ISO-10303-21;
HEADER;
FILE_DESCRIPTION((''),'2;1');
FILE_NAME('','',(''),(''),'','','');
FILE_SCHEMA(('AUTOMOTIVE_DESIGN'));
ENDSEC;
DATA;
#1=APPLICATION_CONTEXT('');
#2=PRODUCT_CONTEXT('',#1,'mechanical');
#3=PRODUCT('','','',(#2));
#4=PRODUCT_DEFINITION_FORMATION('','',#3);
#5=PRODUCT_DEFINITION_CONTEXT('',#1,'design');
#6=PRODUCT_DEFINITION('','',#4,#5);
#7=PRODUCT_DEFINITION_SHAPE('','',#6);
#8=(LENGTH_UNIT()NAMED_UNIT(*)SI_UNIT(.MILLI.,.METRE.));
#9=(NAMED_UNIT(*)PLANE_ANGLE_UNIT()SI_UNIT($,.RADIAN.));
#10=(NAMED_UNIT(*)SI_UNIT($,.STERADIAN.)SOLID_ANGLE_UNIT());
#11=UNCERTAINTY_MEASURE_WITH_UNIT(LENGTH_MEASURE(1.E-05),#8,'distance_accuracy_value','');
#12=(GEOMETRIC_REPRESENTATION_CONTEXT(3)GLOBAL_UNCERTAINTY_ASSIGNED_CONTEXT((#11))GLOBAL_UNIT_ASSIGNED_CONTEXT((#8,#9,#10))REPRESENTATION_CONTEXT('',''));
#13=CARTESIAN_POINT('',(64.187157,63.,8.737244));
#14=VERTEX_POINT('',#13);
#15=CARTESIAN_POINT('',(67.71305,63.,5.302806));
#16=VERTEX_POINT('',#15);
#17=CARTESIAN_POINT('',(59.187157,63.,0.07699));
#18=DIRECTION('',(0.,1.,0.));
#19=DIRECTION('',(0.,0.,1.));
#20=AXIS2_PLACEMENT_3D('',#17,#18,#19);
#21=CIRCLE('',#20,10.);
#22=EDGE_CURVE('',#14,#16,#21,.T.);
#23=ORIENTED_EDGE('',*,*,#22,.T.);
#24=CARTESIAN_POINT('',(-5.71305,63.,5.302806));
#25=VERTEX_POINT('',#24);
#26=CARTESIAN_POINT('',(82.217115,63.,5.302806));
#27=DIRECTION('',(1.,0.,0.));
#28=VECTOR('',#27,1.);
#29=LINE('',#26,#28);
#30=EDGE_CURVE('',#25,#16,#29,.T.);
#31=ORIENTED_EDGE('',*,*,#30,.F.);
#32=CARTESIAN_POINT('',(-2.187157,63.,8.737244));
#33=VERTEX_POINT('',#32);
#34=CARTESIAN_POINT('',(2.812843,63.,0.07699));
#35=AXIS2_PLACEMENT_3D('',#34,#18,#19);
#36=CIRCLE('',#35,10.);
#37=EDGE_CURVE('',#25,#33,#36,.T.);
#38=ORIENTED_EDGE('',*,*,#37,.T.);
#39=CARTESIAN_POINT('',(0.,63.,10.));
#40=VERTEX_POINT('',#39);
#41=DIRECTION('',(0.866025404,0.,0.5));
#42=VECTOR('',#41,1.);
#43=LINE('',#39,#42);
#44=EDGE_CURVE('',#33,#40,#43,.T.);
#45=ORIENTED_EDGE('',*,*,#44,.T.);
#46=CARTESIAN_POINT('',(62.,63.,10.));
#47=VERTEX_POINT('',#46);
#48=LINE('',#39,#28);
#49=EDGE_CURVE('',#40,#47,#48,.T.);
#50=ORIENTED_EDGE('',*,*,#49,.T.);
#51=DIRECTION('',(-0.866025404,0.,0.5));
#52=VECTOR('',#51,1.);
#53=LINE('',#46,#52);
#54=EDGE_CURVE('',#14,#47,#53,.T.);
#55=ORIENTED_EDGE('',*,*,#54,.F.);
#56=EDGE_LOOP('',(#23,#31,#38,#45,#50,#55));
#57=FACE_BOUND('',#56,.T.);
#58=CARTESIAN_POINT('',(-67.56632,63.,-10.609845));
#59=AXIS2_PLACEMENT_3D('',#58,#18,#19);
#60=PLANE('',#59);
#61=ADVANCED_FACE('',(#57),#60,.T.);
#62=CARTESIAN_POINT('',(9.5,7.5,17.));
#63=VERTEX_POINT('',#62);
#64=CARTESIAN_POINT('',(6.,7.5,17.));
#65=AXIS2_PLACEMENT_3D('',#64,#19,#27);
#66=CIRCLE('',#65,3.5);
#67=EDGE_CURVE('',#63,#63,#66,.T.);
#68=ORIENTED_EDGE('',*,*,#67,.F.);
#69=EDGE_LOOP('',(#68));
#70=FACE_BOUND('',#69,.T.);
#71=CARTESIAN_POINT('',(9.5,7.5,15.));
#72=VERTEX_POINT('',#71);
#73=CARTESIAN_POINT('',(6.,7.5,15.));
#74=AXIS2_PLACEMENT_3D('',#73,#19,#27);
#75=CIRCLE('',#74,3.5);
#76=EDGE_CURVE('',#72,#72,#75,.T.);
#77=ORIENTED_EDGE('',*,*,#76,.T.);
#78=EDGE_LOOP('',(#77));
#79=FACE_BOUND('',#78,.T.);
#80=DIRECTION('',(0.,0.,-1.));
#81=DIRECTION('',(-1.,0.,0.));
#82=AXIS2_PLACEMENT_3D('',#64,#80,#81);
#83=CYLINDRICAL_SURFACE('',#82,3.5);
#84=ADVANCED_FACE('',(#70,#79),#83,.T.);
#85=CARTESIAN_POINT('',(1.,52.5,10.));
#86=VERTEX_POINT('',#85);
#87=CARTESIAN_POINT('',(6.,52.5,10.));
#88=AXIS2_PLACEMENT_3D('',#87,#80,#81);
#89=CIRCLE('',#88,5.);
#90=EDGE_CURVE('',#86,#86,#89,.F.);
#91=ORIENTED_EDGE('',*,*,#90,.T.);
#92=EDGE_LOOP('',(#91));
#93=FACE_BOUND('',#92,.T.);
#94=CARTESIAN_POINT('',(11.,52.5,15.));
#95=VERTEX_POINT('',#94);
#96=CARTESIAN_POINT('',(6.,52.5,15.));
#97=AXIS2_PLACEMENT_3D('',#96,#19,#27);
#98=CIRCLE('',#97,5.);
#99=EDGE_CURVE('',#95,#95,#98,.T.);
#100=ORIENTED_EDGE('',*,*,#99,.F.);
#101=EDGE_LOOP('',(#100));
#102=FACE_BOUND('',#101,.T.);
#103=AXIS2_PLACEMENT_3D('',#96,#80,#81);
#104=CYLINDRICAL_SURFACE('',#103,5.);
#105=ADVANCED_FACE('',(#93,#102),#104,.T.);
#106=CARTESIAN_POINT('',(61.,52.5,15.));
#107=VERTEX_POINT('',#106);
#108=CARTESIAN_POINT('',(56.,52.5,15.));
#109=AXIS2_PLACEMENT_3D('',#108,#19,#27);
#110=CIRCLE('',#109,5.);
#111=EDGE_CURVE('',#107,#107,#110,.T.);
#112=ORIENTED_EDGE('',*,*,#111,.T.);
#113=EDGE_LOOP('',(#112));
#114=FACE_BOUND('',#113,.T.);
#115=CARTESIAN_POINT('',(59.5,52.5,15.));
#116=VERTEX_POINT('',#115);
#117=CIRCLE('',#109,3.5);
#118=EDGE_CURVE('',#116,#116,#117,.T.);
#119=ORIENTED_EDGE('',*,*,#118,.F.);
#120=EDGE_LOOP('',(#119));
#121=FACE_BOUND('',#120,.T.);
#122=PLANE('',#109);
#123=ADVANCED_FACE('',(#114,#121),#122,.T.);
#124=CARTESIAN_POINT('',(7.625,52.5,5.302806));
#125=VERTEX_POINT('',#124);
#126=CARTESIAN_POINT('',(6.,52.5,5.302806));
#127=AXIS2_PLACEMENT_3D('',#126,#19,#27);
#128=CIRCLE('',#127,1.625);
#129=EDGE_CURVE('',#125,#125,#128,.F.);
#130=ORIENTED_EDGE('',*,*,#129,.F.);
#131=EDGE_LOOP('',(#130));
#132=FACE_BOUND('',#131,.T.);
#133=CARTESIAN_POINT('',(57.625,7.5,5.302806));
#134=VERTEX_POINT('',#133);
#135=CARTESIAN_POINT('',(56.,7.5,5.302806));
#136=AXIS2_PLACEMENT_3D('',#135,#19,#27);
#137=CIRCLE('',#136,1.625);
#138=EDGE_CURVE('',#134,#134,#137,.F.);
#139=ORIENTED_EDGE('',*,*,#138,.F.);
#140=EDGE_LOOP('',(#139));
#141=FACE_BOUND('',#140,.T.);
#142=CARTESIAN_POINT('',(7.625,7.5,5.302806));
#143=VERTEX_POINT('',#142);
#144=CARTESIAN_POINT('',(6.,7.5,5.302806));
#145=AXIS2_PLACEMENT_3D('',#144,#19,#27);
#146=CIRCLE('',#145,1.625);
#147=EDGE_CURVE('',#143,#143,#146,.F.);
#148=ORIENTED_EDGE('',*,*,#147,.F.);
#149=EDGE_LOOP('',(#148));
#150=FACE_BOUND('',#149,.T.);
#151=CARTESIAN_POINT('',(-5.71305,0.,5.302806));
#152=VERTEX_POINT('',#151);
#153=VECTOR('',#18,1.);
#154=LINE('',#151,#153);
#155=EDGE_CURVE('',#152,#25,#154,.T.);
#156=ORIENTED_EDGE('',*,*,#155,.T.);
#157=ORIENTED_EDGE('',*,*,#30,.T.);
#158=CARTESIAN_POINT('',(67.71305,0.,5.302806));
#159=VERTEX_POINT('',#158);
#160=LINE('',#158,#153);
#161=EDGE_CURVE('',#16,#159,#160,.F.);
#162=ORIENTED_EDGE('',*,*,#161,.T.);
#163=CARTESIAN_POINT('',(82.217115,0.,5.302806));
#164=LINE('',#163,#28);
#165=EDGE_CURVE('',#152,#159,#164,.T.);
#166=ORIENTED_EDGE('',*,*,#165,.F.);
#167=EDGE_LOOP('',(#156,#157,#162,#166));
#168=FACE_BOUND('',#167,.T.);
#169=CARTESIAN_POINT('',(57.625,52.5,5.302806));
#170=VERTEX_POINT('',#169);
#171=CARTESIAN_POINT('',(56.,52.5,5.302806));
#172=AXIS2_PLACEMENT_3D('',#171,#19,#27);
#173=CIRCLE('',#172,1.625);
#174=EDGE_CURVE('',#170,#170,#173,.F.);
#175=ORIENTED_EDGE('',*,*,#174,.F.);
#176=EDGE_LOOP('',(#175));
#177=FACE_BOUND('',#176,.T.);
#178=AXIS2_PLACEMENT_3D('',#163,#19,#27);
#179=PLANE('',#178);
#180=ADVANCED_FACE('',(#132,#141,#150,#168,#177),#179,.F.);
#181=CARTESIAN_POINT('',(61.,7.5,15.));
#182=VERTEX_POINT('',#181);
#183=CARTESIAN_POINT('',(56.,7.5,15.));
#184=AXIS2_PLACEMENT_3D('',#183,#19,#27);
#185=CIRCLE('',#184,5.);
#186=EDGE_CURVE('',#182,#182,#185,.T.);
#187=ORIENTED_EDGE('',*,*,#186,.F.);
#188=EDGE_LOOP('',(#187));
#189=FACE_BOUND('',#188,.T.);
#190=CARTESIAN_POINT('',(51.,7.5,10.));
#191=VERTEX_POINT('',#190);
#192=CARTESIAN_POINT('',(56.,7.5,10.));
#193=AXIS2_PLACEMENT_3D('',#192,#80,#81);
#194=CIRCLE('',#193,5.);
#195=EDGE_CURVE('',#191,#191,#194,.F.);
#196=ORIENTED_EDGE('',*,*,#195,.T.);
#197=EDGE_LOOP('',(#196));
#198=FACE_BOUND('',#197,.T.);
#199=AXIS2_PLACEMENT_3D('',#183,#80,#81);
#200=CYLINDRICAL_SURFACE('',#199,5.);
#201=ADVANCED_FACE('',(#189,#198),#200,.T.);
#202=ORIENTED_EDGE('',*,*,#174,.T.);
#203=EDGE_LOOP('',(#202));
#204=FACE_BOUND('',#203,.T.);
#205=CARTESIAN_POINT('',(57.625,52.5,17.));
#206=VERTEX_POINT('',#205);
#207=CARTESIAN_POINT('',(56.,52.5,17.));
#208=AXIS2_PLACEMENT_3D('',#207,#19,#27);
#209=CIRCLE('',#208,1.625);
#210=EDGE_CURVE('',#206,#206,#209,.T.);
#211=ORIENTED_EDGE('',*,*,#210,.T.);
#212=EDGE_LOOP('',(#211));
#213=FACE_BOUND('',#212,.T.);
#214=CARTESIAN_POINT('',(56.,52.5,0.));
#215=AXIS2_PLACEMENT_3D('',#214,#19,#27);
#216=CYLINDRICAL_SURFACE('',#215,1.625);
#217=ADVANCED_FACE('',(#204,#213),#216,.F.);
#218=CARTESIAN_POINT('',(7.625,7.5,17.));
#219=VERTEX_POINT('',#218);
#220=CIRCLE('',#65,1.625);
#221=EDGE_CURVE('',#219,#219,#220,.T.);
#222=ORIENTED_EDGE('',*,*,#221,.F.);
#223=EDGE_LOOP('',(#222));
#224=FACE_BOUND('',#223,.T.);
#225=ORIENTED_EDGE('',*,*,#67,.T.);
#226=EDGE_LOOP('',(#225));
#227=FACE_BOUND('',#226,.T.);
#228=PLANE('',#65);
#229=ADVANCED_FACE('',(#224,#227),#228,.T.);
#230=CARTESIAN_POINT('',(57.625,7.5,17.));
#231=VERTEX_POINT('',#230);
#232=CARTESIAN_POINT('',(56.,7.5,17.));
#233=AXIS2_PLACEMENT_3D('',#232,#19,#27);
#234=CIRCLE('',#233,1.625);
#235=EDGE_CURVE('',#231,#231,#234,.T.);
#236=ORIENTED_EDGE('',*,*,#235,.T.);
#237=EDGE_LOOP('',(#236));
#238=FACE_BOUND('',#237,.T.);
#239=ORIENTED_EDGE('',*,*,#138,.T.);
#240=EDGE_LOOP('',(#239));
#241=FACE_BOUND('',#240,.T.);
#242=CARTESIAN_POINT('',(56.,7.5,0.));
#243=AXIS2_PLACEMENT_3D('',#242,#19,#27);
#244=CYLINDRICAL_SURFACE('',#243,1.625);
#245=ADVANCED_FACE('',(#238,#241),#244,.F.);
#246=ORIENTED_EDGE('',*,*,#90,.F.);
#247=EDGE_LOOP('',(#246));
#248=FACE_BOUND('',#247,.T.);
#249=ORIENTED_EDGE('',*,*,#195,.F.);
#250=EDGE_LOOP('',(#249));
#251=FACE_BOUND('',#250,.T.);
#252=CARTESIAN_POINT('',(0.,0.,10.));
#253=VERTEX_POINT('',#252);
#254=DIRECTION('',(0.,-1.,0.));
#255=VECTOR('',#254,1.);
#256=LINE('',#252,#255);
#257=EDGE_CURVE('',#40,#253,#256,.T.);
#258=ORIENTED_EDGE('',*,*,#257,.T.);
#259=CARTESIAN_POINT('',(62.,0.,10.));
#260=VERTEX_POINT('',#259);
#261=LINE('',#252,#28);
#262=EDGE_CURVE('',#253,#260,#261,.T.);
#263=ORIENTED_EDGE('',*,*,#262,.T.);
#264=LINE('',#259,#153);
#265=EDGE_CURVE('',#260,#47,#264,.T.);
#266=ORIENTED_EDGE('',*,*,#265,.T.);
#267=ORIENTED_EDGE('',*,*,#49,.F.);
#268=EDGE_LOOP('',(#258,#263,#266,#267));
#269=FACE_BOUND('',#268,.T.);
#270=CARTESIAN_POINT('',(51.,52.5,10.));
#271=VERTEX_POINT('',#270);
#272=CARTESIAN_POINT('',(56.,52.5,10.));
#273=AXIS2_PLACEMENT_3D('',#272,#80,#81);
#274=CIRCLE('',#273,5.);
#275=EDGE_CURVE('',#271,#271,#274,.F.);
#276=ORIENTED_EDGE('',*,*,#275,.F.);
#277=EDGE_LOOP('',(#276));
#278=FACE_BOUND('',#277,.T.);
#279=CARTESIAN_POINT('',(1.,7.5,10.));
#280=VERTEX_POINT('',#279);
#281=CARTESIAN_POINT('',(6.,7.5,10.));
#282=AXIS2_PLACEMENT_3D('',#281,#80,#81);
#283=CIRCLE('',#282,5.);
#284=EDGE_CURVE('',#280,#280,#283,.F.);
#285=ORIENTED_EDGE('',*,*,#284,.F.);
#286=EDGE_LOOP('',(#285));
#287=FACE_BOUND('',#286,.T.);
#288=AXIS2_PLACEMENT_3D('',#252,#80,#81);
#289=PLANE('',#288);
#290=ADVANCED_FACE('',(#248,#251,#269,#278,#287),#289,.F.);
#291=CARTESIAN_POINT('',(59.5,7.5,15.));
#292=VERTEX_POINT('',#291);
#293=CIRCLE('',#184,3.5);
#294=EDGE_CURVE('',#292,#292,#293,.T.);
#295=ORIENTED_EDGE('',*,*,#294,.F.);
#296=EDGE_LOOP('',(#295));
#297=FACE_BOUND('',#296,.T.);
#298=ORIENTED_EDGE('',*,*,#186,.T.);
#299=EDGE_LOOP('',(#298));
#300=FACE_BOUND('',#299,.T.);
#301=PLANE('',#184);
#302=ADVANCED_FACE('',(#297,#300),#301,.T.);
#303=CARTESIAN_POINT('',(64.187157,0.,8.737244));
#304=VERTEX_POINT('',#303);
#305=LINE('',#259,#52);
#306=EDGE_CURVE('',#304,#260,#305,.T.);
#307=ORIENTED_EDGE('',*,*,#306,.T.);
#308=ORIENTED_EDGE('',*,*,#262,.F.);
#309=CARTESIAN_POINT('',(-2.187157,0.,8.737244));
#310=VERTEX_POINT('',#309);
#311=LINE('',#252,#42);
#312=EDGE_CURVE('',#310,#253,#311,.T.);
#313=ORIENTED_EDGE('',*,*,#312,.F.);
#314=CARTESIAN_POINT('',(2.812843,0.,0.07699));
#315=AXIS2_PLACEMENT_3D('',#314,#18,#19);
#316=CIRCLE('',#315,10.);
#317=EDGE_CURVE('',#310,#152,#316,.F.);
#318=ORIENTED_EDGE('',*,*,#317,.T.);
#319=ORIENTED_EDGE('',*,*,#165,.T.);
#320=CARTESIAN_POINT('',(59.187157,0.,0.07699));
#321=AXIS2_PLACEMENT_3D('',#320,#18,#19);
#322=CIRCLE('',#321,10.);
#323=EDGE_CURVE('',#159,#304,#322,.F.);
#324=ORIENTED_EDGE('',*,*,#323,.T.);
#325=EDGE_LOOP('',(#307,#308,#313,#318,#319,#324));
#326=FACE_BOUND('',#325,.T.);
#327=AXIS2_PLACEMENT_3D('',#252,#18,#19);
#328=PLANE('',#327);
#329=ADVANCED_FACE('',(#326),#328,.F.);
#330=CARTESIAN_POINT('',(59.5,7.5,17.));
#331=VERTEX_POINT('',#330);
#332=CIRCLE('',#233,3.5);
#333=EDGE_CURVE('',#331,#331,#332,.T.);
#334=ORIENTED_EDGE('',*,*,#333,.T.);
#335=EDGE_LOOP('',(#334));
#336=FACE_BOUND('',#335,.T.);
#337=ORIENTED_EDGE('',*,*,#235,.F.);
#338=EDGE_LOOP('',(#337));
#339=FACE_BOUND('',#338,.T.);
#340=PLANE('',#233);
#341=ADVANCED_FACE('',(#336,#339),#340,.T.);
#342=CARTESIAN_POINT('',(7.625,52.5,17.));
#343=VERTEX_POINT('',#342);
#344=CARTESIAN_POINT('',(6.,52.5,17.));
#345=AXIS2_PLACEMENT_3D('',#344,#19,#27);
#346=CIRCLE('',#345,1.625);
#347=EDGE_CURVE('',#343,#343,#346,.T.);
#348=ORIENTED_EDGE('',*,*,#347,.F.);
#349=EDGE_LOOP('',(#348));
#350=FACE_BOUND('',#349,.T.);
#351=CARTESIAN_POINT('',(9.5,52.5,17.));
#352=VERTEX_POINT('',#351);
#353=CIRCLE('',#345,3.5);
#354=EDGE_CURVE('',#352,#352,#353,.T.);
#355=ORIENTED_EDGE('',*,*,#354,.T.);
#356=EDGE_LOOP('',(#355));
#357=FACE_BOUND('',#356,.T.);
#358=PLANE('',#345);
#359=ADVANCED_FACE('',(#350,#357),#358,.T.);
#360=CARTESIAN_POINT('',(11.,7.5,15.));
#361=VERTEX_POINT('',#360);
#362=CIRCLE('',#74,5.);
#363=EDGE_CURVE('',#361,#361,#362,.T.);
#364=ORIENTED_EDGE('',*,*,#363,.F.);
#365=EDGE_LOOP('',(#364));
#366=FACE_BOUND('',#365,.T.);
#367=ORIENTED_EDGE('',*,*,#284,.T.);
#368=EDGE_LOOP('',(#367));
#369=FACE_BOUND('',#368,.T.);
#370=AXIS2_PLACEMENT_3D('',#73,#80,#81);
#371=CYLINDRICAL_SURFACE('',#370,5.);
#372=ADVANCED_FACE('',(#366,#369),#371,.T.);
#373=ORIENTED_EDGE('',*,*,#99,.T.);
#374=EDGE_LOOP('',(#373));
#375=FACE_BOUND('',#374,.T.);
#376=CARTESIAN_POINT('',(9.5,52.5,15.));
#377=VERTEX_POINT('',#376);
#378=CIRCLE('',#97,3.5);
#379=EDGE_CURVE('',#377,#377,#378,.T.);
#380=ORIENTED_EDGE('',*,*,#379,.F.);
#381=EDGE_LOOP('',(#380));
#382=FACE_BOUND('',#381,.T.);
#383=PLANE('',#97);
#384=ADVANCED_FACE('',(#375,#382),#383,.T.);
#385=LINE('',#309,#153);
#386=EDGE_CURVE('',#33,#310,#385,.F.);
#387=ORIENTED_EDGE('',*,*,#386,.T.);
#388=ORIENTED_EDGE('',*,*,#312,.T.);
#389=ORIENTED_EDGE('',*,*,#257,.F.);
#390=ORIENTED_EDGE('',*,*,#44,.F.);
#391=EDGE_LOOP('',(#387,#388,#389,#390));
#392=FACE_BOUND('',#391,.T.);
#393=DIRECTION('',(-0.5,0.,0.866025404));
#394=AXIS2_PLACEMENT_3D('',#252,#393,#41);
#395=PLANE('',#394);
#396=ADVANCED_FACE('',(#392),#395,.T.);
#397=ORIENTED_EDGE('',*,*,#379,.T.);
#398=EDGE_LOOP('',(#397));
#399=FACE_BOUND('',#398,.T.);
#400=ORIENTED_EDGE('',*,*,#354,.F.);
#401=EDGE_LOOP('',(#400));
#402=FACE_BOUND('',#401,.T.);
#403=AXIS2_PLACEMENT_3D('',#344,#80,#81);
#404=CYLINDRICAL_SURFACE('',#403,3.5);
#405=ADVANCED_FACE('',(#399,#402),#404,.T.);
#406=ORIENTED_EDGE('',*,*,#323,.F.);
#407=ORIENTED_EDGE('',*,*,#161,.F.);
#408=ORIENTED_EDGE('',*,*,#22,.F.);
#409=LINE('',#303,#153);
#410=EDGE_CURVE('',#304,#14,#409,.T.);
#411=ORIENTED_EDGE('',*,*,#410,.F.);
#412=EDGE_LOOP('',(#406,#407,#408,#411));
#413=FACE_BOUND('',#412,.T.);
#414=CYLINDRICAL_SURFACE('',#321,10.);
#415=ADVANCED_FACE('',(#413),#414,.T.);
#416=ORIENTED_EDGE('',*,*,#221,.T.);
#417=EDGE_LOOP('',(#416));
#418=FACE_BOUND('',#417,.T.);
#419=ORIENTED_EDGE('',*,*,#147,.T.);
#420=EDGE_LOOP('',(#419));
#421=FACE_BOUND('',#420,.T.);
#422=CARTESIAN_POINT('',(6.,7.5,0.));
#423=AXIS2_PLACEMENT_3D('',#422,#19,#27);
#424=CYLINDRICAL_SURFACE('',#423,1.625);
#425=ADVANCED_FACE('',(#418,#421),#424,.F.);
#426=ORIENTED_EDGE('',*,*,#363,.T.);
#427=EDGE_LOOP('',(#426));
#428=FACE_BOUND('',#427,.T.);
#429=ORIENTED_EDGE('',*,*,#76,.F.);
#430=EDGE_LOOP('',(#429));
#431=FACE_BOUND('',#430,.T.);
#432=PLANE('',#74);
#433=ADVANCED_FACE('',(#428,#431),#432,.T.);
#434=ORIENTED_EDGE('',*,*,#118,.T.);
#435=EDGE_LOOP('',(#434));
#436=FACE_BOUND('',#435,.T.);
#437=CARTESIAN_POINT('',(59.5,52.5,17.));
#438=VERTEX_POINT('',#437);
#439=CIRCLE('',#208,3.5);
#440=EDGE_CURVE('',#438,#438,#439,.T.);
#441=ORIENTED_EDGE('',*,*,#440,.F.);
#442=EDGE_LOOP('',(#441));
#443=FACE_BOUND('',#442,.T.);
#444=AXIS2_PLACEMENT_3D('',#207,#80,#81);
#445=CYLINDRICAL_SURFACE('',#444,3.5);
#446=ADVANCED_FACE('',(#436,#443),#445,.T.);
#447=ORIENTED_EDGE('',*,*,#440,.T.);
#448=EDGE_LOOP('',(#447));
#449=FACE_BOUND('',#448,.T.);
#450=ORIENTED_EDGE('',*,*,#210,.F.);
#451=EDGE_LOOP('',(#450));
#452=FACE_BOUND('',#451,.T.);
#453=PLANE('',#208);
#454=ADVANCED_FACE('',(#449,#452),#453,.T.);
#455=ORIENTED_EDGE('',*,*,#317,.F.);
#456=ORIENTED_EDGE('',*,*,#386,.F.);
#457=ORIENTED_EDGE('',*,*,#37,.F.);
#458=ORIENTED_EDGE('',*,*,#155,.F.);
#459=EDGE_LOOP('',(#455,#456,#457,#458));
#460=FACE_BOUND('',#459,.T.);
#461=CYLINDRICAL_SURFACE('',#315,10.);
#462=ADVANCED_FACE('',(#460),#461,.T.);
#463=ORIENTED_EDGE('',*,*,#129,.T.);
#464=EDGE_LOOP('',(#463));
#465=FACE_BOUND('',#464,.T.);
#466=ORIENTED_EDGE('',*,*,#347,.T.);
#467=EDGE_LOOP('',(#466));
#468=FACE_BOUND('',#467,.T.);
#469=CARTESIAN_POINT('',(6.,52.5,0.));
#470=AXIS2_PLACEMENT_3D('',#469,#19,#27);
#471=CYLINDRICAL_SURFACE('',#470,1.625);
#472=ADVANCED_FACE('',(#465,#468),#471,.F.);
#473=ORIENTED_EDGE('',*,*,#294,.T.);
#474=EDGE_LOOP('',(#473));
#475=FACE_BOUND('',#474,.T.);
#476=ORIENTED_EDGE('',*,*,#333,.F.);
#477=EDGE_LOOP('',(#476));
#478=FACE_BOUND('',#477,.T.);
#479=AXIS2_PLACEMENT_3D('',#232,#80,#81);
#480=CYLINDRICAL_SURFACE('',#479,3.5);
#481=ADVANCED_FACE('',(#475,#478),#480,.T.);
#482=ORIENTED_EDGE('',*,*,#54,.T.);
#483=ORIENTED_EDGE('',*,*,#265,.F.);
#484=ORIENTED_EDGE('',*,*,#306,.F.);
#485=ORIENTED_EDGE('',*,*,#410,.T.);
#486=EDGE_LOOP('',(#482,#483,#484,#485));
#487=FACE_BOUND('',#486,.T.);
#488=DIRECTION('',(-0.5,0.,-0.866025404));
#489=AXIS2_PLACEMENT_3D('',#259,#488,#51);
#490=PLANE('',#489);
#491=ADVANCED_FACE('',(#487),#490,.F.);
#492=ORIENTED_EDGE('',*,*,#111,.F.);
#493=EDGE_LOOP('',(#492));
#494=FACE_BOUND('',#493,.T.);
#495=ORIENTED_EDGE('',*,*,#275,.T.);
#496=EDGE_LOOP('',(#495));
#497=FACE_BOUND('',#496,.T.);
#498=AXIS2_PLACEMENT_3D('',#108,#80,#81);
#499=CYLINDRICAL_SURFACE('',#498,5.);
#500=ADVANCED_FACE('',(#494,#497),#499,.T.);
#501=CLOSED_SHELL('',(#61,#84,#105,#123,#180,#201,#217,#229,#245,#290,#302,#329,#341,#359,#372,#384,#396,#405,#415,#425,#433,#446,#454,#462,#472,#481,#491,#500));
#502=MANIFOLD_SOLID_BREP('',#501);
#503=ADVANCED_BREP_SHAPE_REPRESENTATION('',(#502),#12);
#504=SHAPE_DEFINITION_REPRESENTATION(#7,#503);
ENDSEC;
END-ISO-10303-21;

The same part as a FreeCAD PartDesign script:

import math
import FreeCAD as App
import Part
import Sketcher
Q = App.Units.Quantity


def edges_at(feature, points):
    """Names of the edges that pass closest to the given points."""
    edges = feature.Shape.Edges
    near = lambda p: min(range(len(edges)), key=lambda i: edges[i].distToShape(Part.Vertex(*p))[0])
    return sorted({f"Edge{near(p) + 1}" for p in points})

doc = App.newDocument("Part")
params = doc.addObject("Spreadsheet::Sheet", "Params")
for row, (alias, value) in enumerate([
    ("sketch1_width", "62 mm"),
    ("sketch1_height", "60 mm"),
    ("pad1_length", "10 mm"),
    ("sketch2_diameter", "10 mm"),
    ("pad2_length", "5 mm"),
    ("sketch3_diameter", "7 mm"),
    ("pad3_length", "2 mm"),
    ("sketch4_diameter", "3.25 mm"),
    ("sketch5_radius", "130 mm"),
    ("sketch5_width", "62 mm"),
    ("sketch5_width2", "50 mm"),
    ("sketch5_height", "10 mm"),
    ("pad4_length", "6 mm"),
    ("sketch6_diameter", "22 mm"),
    ("sketch6_diameter2", "3 mm"),
    ("sketch6_diameter3", "3.25 mm"),
    ("pocket2_length", "10 mm"),
    ("sketch7_radius", "130 mm"),
    ("sketch7_radius2", "100 mm"),
    ("sketch7_height", "10 mm"),
    ("sketch7_length", "8 mm"),
    ("pad5_length", "63 mm"),
    ("pocket3_length", "4 mm"),
    ("sketch9_radius", "70 mm"),
    ("sketch9_width", "53 mm"),
    ("sketch9_height", "51 mm"),
    ("pocket4_length", "204 mm"),
    ("sketch10_width", "42 mm"),
    ("pocket5_length", "23 mm"),
    ("pocket5_length2", "1 mm"),
    ("chamfer_size", "1 mm"),
    ("fillet_radius", "10 mm"),
], start=1):
    params.set(f"A{row}", alias)
    params.set(f"B{row}", "=" + value)
    params.setAlias(f"B{row}", alias)

body = doc.addObject("PartDesign::Body", "Body")

# Sketch on XY plane
sketch1 = doc.addObject("Sketcher::SketchObject", "Sketch")
body.addObject(sketch1)
sketch1.AttachmentSupport = (doc.XY_Plane, [""])
sketch1.MapMode = "FlatFace"
sketch1.addGeometry([
    Part.LineSegment(App.Vector(0, 60, 0), App.Vector(0, 0, 0)),
    Part.LineSegment(App.Vector(0, 0, 0), App.Vector(62, 0, 0)),
    Part.LineSegment(App.Vector(62, 0, 0), App.Vector(62, 60, 0)),
    Part.LineSegment(App.Vector(62, 60, 0), App.Vector(0, 60, 0)),
], False)
sketch1.addConstraint([
    Sketcher.Constraint("Coincident", 0, 2, 1, 1),
    Sketcher.Constraint("Coincident", 1, 2, 2, 1),
    Sketcher.Constraint("Coincident", 2, 2, 3, 1),
    Sketcher.Constraint("Coincident", 3, 2, 0, 1),
    Sketcher.Constraint("Vertical", 0),
    Sketcher.Constraint("Horizontal", 1),
    Sketcher.Constraint("Vertical", 2),
    Sketcher.Constraint("Horizontal", 3),
    Sketcher.Constraint("Coincident", 0, 2, -1, 1),
    Sketcher.Constraint("DistanceX", 1, 1, 1, 2, Q("62 mm")),
    Sketcher.Constraint("DistanceY", 0, 2, 0, 1, Q("60 mm")),
])
sketch1.setExpression("Constraints[9]", "Params.sketch1_width")
sketch1.setExpression("Constraints[10]", "Params.sketch1_height")
pad1 = doc.addObject("PartDesign::Pad", "Pad")
body.addObject(pad1)
pad1.Profile = sketch1
pad1.setExpression("Length", "Params.pad1_length")

# Sketch on XY plane
sketch2 = doc.addObject("Sketcher::SketchObject", "Sketch001")
body.addObject(sketch2)
sketch2.AttachmentSupport = (doc.XY_Plane, [""])
sketch2.MapMode = "FlatFace"
sketch2.AttachmentOffset = App.Placement(App.Vector(0, 0, 10), App.Rotation())
sketch2.addGeometry([
    Part.Circle(App.Vector(6, 52, 0), App.Vector(0, 0, 1), 5),
    Part.Circle(App.Vector(56, 8, 0), App.Vector(0, 0, 1), 5),
    Part.Circle(App.Vector(6, 8, 0), App.Vector(0, 0, 1), 5),
    Part.Circle(App.Vector(56, 52, 0), App.Vector(0, 0, 1), 5),
], False)
sketch2.addConstraint([
    Sketcher.Constraint("Equal", 0, 1),
    Sketcher.Constraint("Equal", 1, 2),
    Sketcher.Constraint("Equal", 2, 3),
    Sketcher.Constraint("Horizontal", 1, 3, 2, 3),
    Sketcher.Constraint("Horizontal", 0, 3, 3, 3),
    Sketcher.Constraint("Vertical", 0, 3, 2, 3),
    Sketcher.Constraint("Vertical", 1, 3, 3, 3),
    Sketcher.Constraint("Diameter", 0, Q("10 mm")),
    Sketcher.Constraint("DistanceX", -1, 1, 0, 3, Q("6 mm")),
    Sketcher.Constraint("DistanceX", -1, 1, 1, 3, Q("56 mm")),
    Sketcher.Constraint("DistanceY", 1, 3, 0, 3, Q("45 mm")),
    Sketcher.Constraint("DistanceY", -1, 1, 0, 3, Q("52.5 mm")),
])
sketch2.setExpression("Constraints[7]", "Params.sketch2_diameter")
pad2 = doc.addObject("PartDesign::Pad", "Pad001")
body.addObject(pad2)
pad2.Profile = sketch2
pad2.setExpression("Length", "Params.pad2_length")

# Sketch on XY plane
sketch3 = doc.addObject("Sketcher::SketchObject", "Sketch002")
body.addObject(sketch3)
sketch3.AttachmentSupport = (doc.XY_Plane, [""])
sketch3.MapMode = "FlatFace"
sketch3.AttachmentOffset = App.Placement(App.Vector(0, 0, 15), App.Rotation())
sketch3.addGeometry([
    Part.Circle(App.Vector(6, 52.5, 0), App.Vector(0, 0, 1), 3.5),
    Part.Circle(App.Vector(56, 52.5, 0), App.Vector(0, 0, 1), 3.5),
    Part.Circle(App.Vector(56, 7.5, 0), App.Vector(0, 0, 1), 3.5),
    Part.Circle(App.Vector(6, 7.5, 0), App.Vector(0, 0, 1), 3.5),
], False)
sketch3.addConstraint([
    Sketcher.Constraint("Equal", 0, 1),
    Sketcher.Constraint("Equal", 1, 2),
    Sketcher.Constraint("Equal", 2, 3),
    Sketcher.Constraint("Horizontal", 0, 3, 1, 3),
    Sketcher.Constraint("Horizontal", 2, 3, 3, 3),
    Sketcher.Constraint("Vertical", 1, 3, 2, 3),
    Sketcher.Constraint("Vertical", 0, 3, 3, 3),
    Sketcher.Constraint("Diameter", 0, Q("7 mm")),
    Sketcher.Constraint("DistanceX", -1, 1, 0, 3, Q("6 mm")),
    Sketcher.Constraint("DistanceX", -1, 1, 1, 3, Q("56 mm")),
    Sketcher.Constraint("DistanceY", 2, 3, 1, 3, Q("45 mm")),
    Sketcher.Constraint("DistanceY", -1, 1, 0, 3, Q("52.5 mm")),
])
sketch3.setExpression("Constraints[7]", "Params.sketch3_diameter")
pad3 = doc.addObject("PartDesign::Pad", "Pad002")
body.addObject(pad3)
pad3.Profile = sketch3
pad3.setExpression("Length", "Params.pad3_length")

# Sketch on XY plane
sketch4 = doc.addObject("Sketcher::SketchObject", "Sketch003")
body.addObject(sketch4)
sketch4.AttachmentSupport = (doc.XY_Plane, [""])
sketch4.MapMode = "FlatFace"
sketch4.AttachmentOffset = App.Placement(App.Vector(0, 0, 17), App.Rotation())
sketch4.addGeometry([
    Part.Circle(App.Vector(6, 52.5, 0), App.Vector(0, 0, 1), 1.6),
    Part.Circle(App.Vector(56, 52.5, 0), App.Vector(0, 0, 1), 1.6),
    Part.Circle(App.Vector(56, 7.5, 0), App.Vector(0, 0, 1), 1.6),
    Part.Circle(App.Vector(6, 7.5, 0), App.Vector(0, 0, 1), 1.6),
], False)
sketch4.addConstraint([
    Sketcher.Constraint("Equal", 0, 1),
    Sketcher.Constraint("Equal", 1, 2),
    Sketcher.Constraint("Equal", 2, 3),
    Sketcher.Constraint("Horizontal", 0, 3, 1, 3),
    Sketcher.Constraint("Horizontal", 2, 3, 3, 3),
    Sketcher.Constraint("Vertical", 1, 3, 2, 3),
    Sketcher.Constraint("Vertical", 0, 3, 3, 3),
    Sketcher.Constraint("Diameter", 0, Q("3.25 mm")),
    Sketcher.Constraint("DistanceX", -1, 1, 0, 3, Q("6 mm")),
    Sketcher.Constraint("DistanceX", -1, 1, 1, 3, Q("56 mm")),
    Sketcher.Constraint("DistanceY", 2, 3, 1, 3, Q("45 mm")),
    Sketcher.Constraint("DistanceY", -1, 1, 0, 3, Q("52.5 mm")),
])
sketch4.setExpression("Constraints[7]", "Params.sketch4_diameter")
pocket1 = doc.addObject("PartDesign::Pocket", "Pocket")
body.addObject(pocket1)
pocket1.Profile = sketch4
pocket1.Type = "ThroughAll"

# Sketch on XZ plane
sketch5 = doc.addObject("Sketcher::SketchObject", "Sketch004")
body.addObject(sketch5)
sketch5.AttachmentSupport = (doc.XZ_Plane, [""])
sketch5.MapMode = "FlatFace"
sketch5.AttachmentOffset = App.Placement(App.Vector(0, 0, -60), App.Rotation())
sketch5.addGeometry([
    Part.LineSegment(App.Vector(0, 0, 0), App.Vector(0, 10, 0)),  # 0
    Part.LineSegment(App.Vector(0, 10, 0), App.Vector(62, 10, 0)),  # 1
    Part.LineSegment(App.Vector(62, 10, 0), App.Vector(62, 0, 0)),  # 2
    Part.ArcOfCircle(Part.Circle(App.Vector(-68, -11, 0), App.Vector(0, 0, 1), 130), math.radians(-18), math.radians(5)),  # 3
    Part.LineSegment(App.Vector(56, -51, 0), App.Vector(6, -51, 0)),  # 4
    Part.ArcOfCircle(Part.Circle(App.Vector(130, -11, 0), App.Vector(0, 0, 1), 130), math.radians(175), math.radians(198)),  # 5
], False)
sketch5.addConstraint([
    Sketcher.Constraint("Coincident", 0, 2, 1, 1),
    Sketcher.Constraint("Coincident", 1, 2, 2, 1),
    Sketcher.Constraint("Coincident", 2, 2, 3, 2),
    Sketcher.Constraint("Coincident", 3, 1, 4, 1),
    Sketcher.Constraint("Coincident", 4, 2, 5, 2),
    Sketcher.Constraint("Coincident", 5, 1, 0, 1),
    Sketcher.Constraint("Vertical", 0),
    Sketcher.Constraint("Horizontal", 1),
    Sketcher.Constraint("Vertical", 2),
    Sketcher.Constraint("Horizontal", 4),
    Sketcher.Constraint("Coincident", 5, 1, -1, 1),
    Sketcher.Constraint("Equal", 3, 5),
    Sketcher.Constraint("PointOnObject", 2, 2, -1),
    Sketcher.Constraint("Horizontal", 3, 3, 5, 3),
    Sketcher.Constraint("Radius", 3, Q("130 mm")),
    Sketcher.Constraint("DistanceX", 1, 1, 1, 2, Q("62 mm")),
    Sketcher.Constraint("DistanceX", 4, 2, 4, 1, Q("50 mm")),
    Sketcher.Constraint("DistanceY", 0, 1, 0, 2, Q("10 mm")),
    Sketcher.Constraint("DistanceY", 3, 1, -1, 1, Q("51 mm")),
])
sketch5.setExpression("Constraints[14]", "Params.sketch5_radius")
sketch5.setExpression("Constraints[15]", "Params.sketch5_width")
sketch5.setExpression("Constraints[16]", "Params.sketch5_width2")
sketch5.setExpression("Constraints[17]", "Params.sketch5_height")
pad4 = doc.addObject("PartDesign::Pad", "Pad003")
body.addObject(pad4)
pad4.Profile = sketch5
pad4.setExpression("Length", "Params.pad4_length")
pad4.Midplane = True

# Sketch on XZ plane
sketch6 = doc.addObject("Sketcher::SketchObject", "Sketch005")
body.addObject(sketch6)
sketch6.AttachmentSupport = (doc.XZ_Plane, [""])
sketch6.MapMode = "FlatFace"
sketch6.AttachmentOffset = App.Placement(App.Vector(0, 0, -63), App.Rotation())
sketch6.addGeometry([
    Part.Circle(App.Vector(31, -30, 0), App.Vector(0, 0, 1), 11),  # 0
    Part.Circle(App.Vector(46.5, -14.5, 0), App.Vector(0, 0, 1), 1.6),  # 1
    Part.Circle(App.Vector(15.5, -14.5, 0), App.Vector(0, 0, 1), 1.6),  # 2
    Part.Circle(App.Vector(15.5, -45.5, 0), App.Vector(0, 0, 1), 1.6),  # 3
    Part.Circle(App.Vector(46.5, -45.5, 0), App.Vector(0, 0, 1), 1.6),  # 4
    Part.Circle(App.Vector(56, -18, 0), App.Vector(0, 0, 1), 1.5),  # 5
    Part.Circle(App.Vector(6, -18, 0), App.Vector(0, 0, 1), 1.5),  # 6
], False)
sketch6.addConstraint([
    Sketcher.Constraint("Equal", 1, 2),
    Sketcher.Constraint("Equal", 2, 3),
    Sketcher.Constraint("Equal", 3, 4),
    Sketcher.Constraint("Equal", 5, 6),
    Sketcher.Constraint("Horizontal", 1, 3, 2, 3),
    Sketcher.Constraint("Horizontal", 3, 3, 4, 3),
    Sketcher.Constraint("Horizontal", 5, 3, 6, 3),
    Sketcher.Constraint("Vertical", 2, 3, 3, 3),
    Sketcher.Constraint("Vertical", 1, 3, 4, 3),
    Sketcher.Constraint("Diameter", 0, Q("22 mm")),
    Sketcher.Constraint("Diameter", 5, Q("3 mm")),
    Sketcher.Constraint("Diameter", 1, Q("3.25 mm")),
    Sketcher.Constraint("DistanceX", -1, 1, 0, 3, Q("31 mm")),
    Sketcher.Constraint("DistanceY", 0, 3, -1, 1, Q("30 mm")),
    Sketcher.Constraint("DistanceX", -1, 1, 5, 3, Q("56 mm")),
    Sketcher.Constraint("DistanceY", 5, 3, -1, 1, Q("18 mm")),
    Sketcher.Constraint("DistanceX", -1, 1, 6, 3, Q("6 mm")),
    Sketcher.Constraint("DistanceX", 2, 3, 1, 3, Q("31 mm")),
    Sketcher.Constraint("DistanceY", 3, 3, 2, 3, Q("31 mm")),
    Sketcher.Constraint("DistanceX", -1, 1, 1, 3, Q("46.5 mm")),
    Sketcher.Constraint("DistanceY", 1, 3, -1, 1, Q("14.5 mm")),
])
sketch6.setExpression("Constraints[9]", "Params.sketch6_diameter")
sketch6.setExpression("Constraints[10]", "Params.sketch6_diameter2")
sketch6.setExpression("Constraints[11]", "Params.sketch6_diameter3")
pocket2 = doc.addObject("PartDesign::Pocket", "Pocket001")
body.addObject(pocket2)
pocket2.Profile = sketch6
pocket2.setExpression("Length", "Params.pocket2_length")
pocket2.Reversed = True

# Sketch on XZ plane
sketch7 = doc.addObject("Sketcher::SketchObject", "Sketch006")
body.addObject(sketch7)
sketch7.AttachmentSupport = (doc.XZ_Plane, [""])
sketch7.MapMode = "FlatFace"
sketch7.AttachmentOffset = App.Placement(App.Vector(0, 0, -63), App.Rotation())
sketch7.addGeometry([
    Part.LineSegment(App.Vector(0, 10, 0), App.Vector(0, 0, 0)),  # 0
    Part.ArcOfCircle(Part.Circle(App.Vector(130, 1, 0), App.Vector(0, 0, 1), 130), math.radians(-179), math.radians(-156)),  # 1
    Part.LineSegment(App.Vector(11, -51, 0), App.Vector(6, -51, 0)),  # 2
    Part.ArcOfCircle(Part.Circle(App.Vector(93, -1, 0), App.Vector(0, 0, 1), 100), math.radians(176), math.radians(210)),  # 3
    Part.LineSegment(App.Vector(-7, 6, 0), App.Vector(0, 10, 0)),  # 4
], False)
sketch7.addConstraint([
    Sketcher.Constraint("Coincident", 0, 2, 1, 1),
    Sketcher.Constraint("Coincident", 1, 2, 2, 1),
    Sketcher.Constraint("Coincident", 2, 2, 3, 2),
    Sketcher.Constraint("Coincident", 3, 1, 4, 1),
    Sketcher.Constraint("Coincident", 4, 2, 0, 1),
    Sketcher.Constraint("Vertical", 0),
    Sketcher.Constraint("Horizontal", 2),
    Sketcher.Constraint("Coincident", 0, 2, -1, 1),
    Sketcher.Constraint("Radius", 1, Q("130 mm")),
    Sketcher.Constraint("Radius", 3, Q("100 mm")),
    Sketcher.Constraint("DistanceY", 0, 2, 0, 1, Q("10 mm")),
    Sketcher.Constraint("Angle", 4, Q("30 deg")),
    Sketcher.Constraint("Distance", 4, Q("8 mm")),
    Sketcher.Constraint("DistanceY", 1, 2, -1, 1, Q("51 mm")),
    Sketcher.Constraint("DistanceX", -1, 1, 2, 2, Q("6 mm")),
    Sketcher.Constraint("DistanceX", 2, 2, 2, 1, Q("5.044473 mm")),
])
sketch7.setExpression("Constraints[8]", "Params.sketch7_radius")
sketch7.setExpression("Constraints[9]", "Params.sketch7_radius2")
sketch7.setExpression("Constraints[10]", "Params.sketch7_height")
sketch7.setExpression("Constraints[12]", "Params.sketch7_length")
pad5 = doc.addObject("PartDesign::Pad", "Pad004")
body.addObject(pad5)
pad5.Profile = sketch7
pad5.setExpression("Length", "Params.pad5_length")
doc.recompute()

datumplane = doc.addObject("PartDesign::Plane", "DatumPlane")
body.addObject(datumplane)
datumplane.AttachmentSupport = (doc.YZ_Plane, [""])
datumplane.MapMode = "FlatFace"
datumplane.AttachmentOffset = App.Placement(App.Vector(0, 0, 31), App.Rotation())
mirrored = doc.addObject("PartDesign::Mirrored", "Mirrored")
body.addObject(mirrored)
mirrored.Originals = [pad5]
mirrored.MirrorPlane = (datumplane, [""])
body.Tip = mirrored

# Sketch on XZ plane
sketch8 = doc.addObject("Sketcher::SketchObject", "Sketch007")
body.addObject(sketch8)
sketch8.AttachmentSupport = (doc.XZ_Plane, [""])
sketch8.MapMode = "FlatFace"
sketch8.AttachmentOffset = App.Placement(App.Vector(0, 0, -57), App.Rotation())
sketch8.addGeometry([
    Part.LineSegment(App.Vector(10, -18, 0), App.Vector(8, -14.5, 0)),  # 0
    Part.LineSegment(App.Vector(8, -14.5, 0), App.Vector(4, -14.5, 0)),  # 1
    Part.LineSegment(App.Vector(4, -14.5, 0), App.Vector(2, -18, 0)),  # 2
    Part.LineSegment(App.Vector(2, -18, 0), App.Vector(4, -21.5, 0)),  # 3
    Part.LineSegment(App.Vector(4, -21.5, 0), App.Vector(8, -21.5, 0)),  # 4
    Part.LineSegment(App.Vector(8, -21.5, 0), App.Vector(10, -18, 0)),  # 5
    Part.LineSegment(App.Vector(60, -18, 0), App.Vector(58, -14.5, 0)),  # 6
    Part.LineSegment(App.Vector(58, -14.5, 0), App.Vector(54, -14.5, 0)),  # 7
    Part.LineSegment(App.Vector(54, -14.5, 0), App.Vector(52, -18, 0)),  # 8
    Part.LineSegment(App.Vector(52, -18, 0), App.Vector(54, -21.5, 0)),  # 9
    Part.LineSegment(App.Vector(54, -21.5, 0), App.Vector(58, -21.5, 0)),  # 10
    Part.LineSegment(App.Vector(58, -21.5, 0), App.Vector(60, -18, 0)),  # 11
], False)
sketch8.addConstraint([
    Sketcher.Constraint("Coincident", 0, 2, 1, 1),
    Sketcher.Constraint("Coincident", 1, 2, 2, 1),
    Sketcher.Constraint("Coincident", 2, 2, 3, 1),
    Sketcher.Constraint("Coincident", 3, 2, 4, 1),
    Sketcher.Constraint("Coincident", 4, 2, 5, 1),
    Sketcher.Constraint("Coincident", 5, 2, 0, 1),
    Sketcher.Constraint("Coincident", 6, 2, 7, 1),
    Sketcher.Constraint("Coincident", 7, 2, 8, 1),
    Sketcher.Constraint("Coincident", 8, 2, 9, 1),
    Sketcher.Constraint("Coincident", 9, 2, 10, 1),
    Sketcher.Constraint("Coincident", 10, 2, 11, 1),
    Sketcher.Constraint("Coincident", 11, 2, 6, 1),
    Sketcher.Constraint("Horizontal", 1),
    Sketcher.Constraint("Horizontal", 4),
    Sketcher.Constraint("Horizontal", 7),
    Sketcher.Constraint("Horizontal", 10),
    Sketcher.Constraint("Parallel", 0, 3),
    Sketcher.Constraint("Parallel", 2, 5),
    Sketcher.Constraint("Parallel", 3, 6),
    Sketcher.Constraint("Parallel", 5, 8),
    Sketcher.Constraint("Parallel", 6, 9),
    Sketcher.Constraint("Parallel", 8, 11),
    Sketcher.Constraint("Horizontal", 2, 2, 5, 2),
    Sketcher.Constraint("Horizontal", 1, 2, 6, 2),
    Sketcher.Constraint("Horizontal", 5, 2, 8, 2),
    Sketcher.Constraint("Horizontal", 4, 2, 9, 2),
    Sketcher.Constraint("Horizontal", 8, 2, 11, 2),
    Sketcher.Constraint("Vertical", 1, 2, 3, 2),
    Sketcher.Constraint("Vertical", 0, 2, 4, 2),
    Sketcher.Constraint("Equal", 4, 7),
    Sketcher.Constraint("Angle", 0, Q("120 deg")),
    Sketcher.Constraint("DistanceY", 2, 2, -1, 1, Q("18 mm")),
    Sketcher.Constraint("DistanceY", 3, 2, 1, 2, Q("7 mm")),
    Sketcher.Constraint("DistanceX", 0, 2, 6, 2, Q("50 mm")),
    Sketcher.Constraint("DistanceX", 1, 2, 1, 1, Q("4.041452 mm")),
    Sketcher.Constraint("DistanceX", -1, 1, 2, 2, Q("1.958548 mm")),
])
pocket3 = doc.addObject("PartDesign::Pocket", "Pocket002")
body.addObject(pocket3)
pocket3.Profile = sketch8
pocket3.setExpression("Length", "Params.pocket3_length")

# Sketch on YZ plane
sketch9 = doc.addObject("Sketcher::SketchObject", "Sketch008")
body.addObject(sketch9)
sketch9.AttachmentSupport = (doc.YZ_Plane, [""])
sketch9.MapMode = "FlatFace"
sketch9.addGeometry([
    Part.LineSegment(App.Vector(0, -51, 0), App.Vector(53, -51, 0)),
    Part.ArcOfCircle(Part.Circle(App.Vector(-15, -68, 0), App.Vector(0, 0, 1), 70), math.radians(14), math.radians(78)),
    Part.LineSegment(App.Vector(0, 0, 0), App.Vector(0, -51, 0)),
], False)
sketch9.addConstraint([
    Sketcher.Constraint("Coincident", 0, 2, 1, 1),
    Sketcher.Constraint("Coincident", 1, 2, 2, 1),
    Sketcher.Constraint("Coincident", 2, 2, 0, 1),
    Sketcher.Constraint("Horizontal", 0),
    Sketcher.Constraint("Vertical", 2),
    Sketcher.Constraint("Coincident", 1, 2, -1, 1),
    Sketcher.Constraint("Radius", 1, Q("70 mm")),
    Sketcher.Constraint("DistanceX", 0, 1, 0, 2, Q("53 mm")),
    Sketcher.Constraint("DistanceY", 2, 2, 2, 1, Q("51 mm")),
])
sketch9.setExpression("Constraints[6]", "Params.sketch9_radius")
sketch9.setExpression("Constraints[7]", "Params.sketch9_width")
sketch9.setExpression("Constraints[8]", "Params.sketch9_height")
pocket4 = doc.addObject("PartDesign::Pocket", "Pocket003")
body.addObject(pocket4)
pocket4.Profile = sketch9
pocket4.setExpression("Length", "Params.pocket4_length")
pocket4.Midplane = True

# Sketch on XZ plane
sketch10 = doc.addObject("Sketcher::SketchObject", "Sketch009")
body.addObject(sketch10)
sketch10.AttachmentSupport = (doc.XZ_Plane, [""])
sketch10.MapMode = "FlatFace"
sketch10.AttachmentOffset = App.Placement(App.Vector(0, 0, -57), App.Rotation())
sketch10.addGeometry([
    Part.LineSegment(App.Vector(10, -9, 0), App.Vector(10, -51, 0)),
    Part.LineSegment(App.Vector(10, -51, 0), App.Vector(52, -51, 0)),
    Part.LineSegment(App.Vector(52, -51, 0), App.Vector(52, -9, 0)),
    Part.LineSegment(App.Vector(52, -9, 0), App.Vector(10, -9, 0)),
], False)
sketch10.addConstraint([
    Sketcher.Constraint("Coincident", 0, 2, 1, 1),
    Sketcher.Constraint("Coincident", 1, 2, 2, 1),
    Sketcher.Constraint("Coincident", 2, 2, 3, 1),
    Sketcher.Constraint("Coincident", 3, 2, 0, 1),
    Sketcher.Constraint("Vertical", 0),
    Sketcher.Constraint("Horizontal", 1),
    Sketcher.Constraint("Vertical", 2),
    Sketcher.Constraint("Horizontal", 3),
    Sketcher.Constraint("Equal", 3, 0),
    Sketcher.Constraint("DistanceX", 1, 1, 1, 2, Q("42 mm")),
    Sketcher.Constraint("DistanceX", -1, 1, 0, 2, Q("10 mm")),
    Sketcher.Constraint("DistanceY", 0, 2, -1, 1, Q("51 mm")),
])
sketch10.setExpression("Constraints[9]", "Params.sketch10_width")
pocket5 = doc.addObject("PartDesign::Pocket", "Pocket004")
body.addObject(pocket5)
pocket5.Profile = sketch10
pocket5.Type = "TwoLengths"
pocket5.setExpression("Length", "Params.pocket5_length")
pocket5.setExpression("Length2", "Params.pocket5_length2")
pocket5.Reversed = True
doc.recompute()

chamfer = doc.addObject("PartDesign::Chamfer", "Chamfer")
body.addObject(chamfer)
chamfer.Base = (pocket5, edges_at(pocket5, [(31, 63, -41)]))
chamfer.setExpression("Size", "Params.chamfer_size")
doc.recompute()

fillet = doc.addObject("PartDesign::Fillet", "Fillet")
body.addObject(fillet)
fillet.Base = (chamfer, edges_at(chamfer, [(-6.928, 31.5, 6), (68.928, 31.5, 6)]))
fillet.setExpression("Radius", "Params.fillet_radius")

# Sketch on XZ plane
sketch11 = doc.addObject("Sketcher::SketchObject", "Sketch010")
body.addObject(sketch11)
sketch11.AttachmentSupport = (doc.XZ_Plane, [""])
sketch11.MapMode = "FlatFace"
sketch11.AttachmentOffset = App.Placement(App.Vector(0, 0, -63), App.Rotation())
sketch11.addGeometry([
    Part.LineSegment(App.Vector(-15, -73, 0), App.Vector(-15, 5, 0)),
    Part.LineSegment(App.Vector(-15, 5, 0), App.Vector(82, 5, 0)),
    Part.LineSegment(App.Vector(82, 5, 0), App.Vector(82, -73, 0)),
    Part.LineSegment(App.Vector(82, -73, 0), App.Vector(-15, -73, 0)),
], False)
sketch11.addConstraint([
    Sketcher.Constraint("Coincident", 0, 2, 1, 1),
    Sketcher.Constraint("Coincident", 1, 2, 2, 1),
    Sketcher.Constraint("Coincident", 2, 2, 3, 1),
    Sketcher.Constraint("Coincident", 3, 2, 0, 1),
    Sketcher.Constraint("Vertical", 0),
    Sketcher.Constraint("Horizontal", 1),
    Sketcher.Constraint("Vertical", 2),
    Sketcher.Constraint("Horizontal", 3),
    Sketcher.Constraint("DistanceX", 0, 2, -1, 1, Q("14.575299 mm")),
    Sketcher.Constraint("DistanceX", 1, 1, 1, 2, Q("96.792414 mm")),
    Sketcher.Constraint("DistanceY", 0, 1, 0, 2, Q("78.280203 mm")),
    Sketcher.Constraint("DistanceY", -1, 1, 0, 2, Q("5.302806 mm")),
])
pocket6 = doc.addObject("PartDesign::Pocket", "Pocket005")
body.addObject(pocket6)
pocket6.Profile = sketch11
pocket6.Type = "ThroughAll"
pocket6.Reversed = True

doc.recompute()
